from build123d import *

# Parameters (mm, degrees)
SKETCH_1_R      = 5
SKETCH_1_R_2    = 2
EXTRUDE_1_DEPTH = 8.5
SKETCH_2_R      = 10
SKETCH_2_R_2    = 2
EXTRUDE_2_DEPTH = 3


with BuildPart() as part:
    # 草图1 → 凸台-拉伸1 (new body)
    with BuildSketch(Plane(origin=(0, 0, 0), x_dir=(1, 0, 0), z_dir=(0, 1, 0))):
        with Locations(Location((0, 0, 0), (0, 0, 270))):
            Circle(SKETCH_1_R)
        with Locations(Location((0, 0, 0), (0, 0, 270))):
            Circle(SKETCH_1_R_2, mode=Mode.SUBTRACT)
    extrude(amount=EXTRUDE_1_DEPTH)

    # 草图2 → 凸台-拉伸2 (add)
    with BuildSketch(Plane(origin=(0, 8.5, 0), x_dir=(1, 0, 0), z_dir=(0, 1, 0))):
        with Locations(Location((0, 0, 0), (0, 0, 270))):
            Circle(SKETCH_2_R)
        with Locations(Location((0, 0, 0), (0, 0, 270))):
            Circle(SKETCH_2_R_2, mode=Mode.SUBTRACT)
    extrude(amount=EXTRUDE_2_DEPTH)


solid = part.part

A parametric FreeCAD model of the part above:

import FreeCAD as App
import Part
import Sketcher
from FreeCAD import Vector

doc = App.newDocument("Part")
body = doc.addObject("PartDesign::Body", "Body")

# Sketch on XZ plane
sketch1 = body.newObject("Sketcher::SketchObject", "Sketch")
sketch1.AttachmentSupport = (doc.getObject("XZ_Plane"), [""])
sketch1.MapMode = "FlatFace"
sketch1.addGeometry(Part.Circle(Vector(0, 0, 0), Vector(0, 0, 1), 5), False)
sketch1.addGeometry(Part.Circle(Vector(0, 0, 0), Vector(0, 0, 1), 2), False)
sketch1.addConstraint(Sketcher.Constraint("Coincident", 0, 3, -1, 1))
sketch1.addConstraint(Sketcher.Constraint("Coincident", 1, 3, -1, 1))
sketch1.addConstraint(Sketcher.Constraint("Diameter", 0, 10.0))
sketch1.addConstraint(Sketcher.Constraint("Diameter", 1, 4.0))
pad1 = body.newObject("PartDesign::Pad", "Pad")
pad1.Profile = sketch1
pad1.Length = 8.5
pad1.Reversed = True

# Sketch on XZ plane
sketch2 = body.newObject("Sketcher::SketchObject", "Sketch001")
sketch2.AttachmentSupport = (doc.getObject("XZ_Plane"), [""])
sketch2.MapMode = "FlatFace"
sketch2.AttachmentOffset = App.Placement(Vector(0, 0, -8.5), App.Rotation())
sketch2.addGeometry(Part.Circle(Vector(0, 0, 0), Vector(0, 0, 1), 10), False)
sketch2.addGeometry(Part.Circle(Vector(0, 0, 0), Vector(0, 0, 1), 2), False)
sketch2.addConstraint(Sketcher.Constraint("Coincident", 0, 3, -1, 1))
sketch2.addConstraint(Sketcher.Constraint("Coincident", 1, 3, -1, 1))
sketch2.addConstraint(Sketcher.Constraint("Diameter", 0, 20.0))
sketch2.addConstraint(Sketcher.Constraint("Diameter", 1, 4.0))
pad2 = body.newObject("PartDesign::Pad", "Pad001")
pad2.Profile = sketch2
pad2.Length = 3
pad2.Reversed = True

doc.recompute()
